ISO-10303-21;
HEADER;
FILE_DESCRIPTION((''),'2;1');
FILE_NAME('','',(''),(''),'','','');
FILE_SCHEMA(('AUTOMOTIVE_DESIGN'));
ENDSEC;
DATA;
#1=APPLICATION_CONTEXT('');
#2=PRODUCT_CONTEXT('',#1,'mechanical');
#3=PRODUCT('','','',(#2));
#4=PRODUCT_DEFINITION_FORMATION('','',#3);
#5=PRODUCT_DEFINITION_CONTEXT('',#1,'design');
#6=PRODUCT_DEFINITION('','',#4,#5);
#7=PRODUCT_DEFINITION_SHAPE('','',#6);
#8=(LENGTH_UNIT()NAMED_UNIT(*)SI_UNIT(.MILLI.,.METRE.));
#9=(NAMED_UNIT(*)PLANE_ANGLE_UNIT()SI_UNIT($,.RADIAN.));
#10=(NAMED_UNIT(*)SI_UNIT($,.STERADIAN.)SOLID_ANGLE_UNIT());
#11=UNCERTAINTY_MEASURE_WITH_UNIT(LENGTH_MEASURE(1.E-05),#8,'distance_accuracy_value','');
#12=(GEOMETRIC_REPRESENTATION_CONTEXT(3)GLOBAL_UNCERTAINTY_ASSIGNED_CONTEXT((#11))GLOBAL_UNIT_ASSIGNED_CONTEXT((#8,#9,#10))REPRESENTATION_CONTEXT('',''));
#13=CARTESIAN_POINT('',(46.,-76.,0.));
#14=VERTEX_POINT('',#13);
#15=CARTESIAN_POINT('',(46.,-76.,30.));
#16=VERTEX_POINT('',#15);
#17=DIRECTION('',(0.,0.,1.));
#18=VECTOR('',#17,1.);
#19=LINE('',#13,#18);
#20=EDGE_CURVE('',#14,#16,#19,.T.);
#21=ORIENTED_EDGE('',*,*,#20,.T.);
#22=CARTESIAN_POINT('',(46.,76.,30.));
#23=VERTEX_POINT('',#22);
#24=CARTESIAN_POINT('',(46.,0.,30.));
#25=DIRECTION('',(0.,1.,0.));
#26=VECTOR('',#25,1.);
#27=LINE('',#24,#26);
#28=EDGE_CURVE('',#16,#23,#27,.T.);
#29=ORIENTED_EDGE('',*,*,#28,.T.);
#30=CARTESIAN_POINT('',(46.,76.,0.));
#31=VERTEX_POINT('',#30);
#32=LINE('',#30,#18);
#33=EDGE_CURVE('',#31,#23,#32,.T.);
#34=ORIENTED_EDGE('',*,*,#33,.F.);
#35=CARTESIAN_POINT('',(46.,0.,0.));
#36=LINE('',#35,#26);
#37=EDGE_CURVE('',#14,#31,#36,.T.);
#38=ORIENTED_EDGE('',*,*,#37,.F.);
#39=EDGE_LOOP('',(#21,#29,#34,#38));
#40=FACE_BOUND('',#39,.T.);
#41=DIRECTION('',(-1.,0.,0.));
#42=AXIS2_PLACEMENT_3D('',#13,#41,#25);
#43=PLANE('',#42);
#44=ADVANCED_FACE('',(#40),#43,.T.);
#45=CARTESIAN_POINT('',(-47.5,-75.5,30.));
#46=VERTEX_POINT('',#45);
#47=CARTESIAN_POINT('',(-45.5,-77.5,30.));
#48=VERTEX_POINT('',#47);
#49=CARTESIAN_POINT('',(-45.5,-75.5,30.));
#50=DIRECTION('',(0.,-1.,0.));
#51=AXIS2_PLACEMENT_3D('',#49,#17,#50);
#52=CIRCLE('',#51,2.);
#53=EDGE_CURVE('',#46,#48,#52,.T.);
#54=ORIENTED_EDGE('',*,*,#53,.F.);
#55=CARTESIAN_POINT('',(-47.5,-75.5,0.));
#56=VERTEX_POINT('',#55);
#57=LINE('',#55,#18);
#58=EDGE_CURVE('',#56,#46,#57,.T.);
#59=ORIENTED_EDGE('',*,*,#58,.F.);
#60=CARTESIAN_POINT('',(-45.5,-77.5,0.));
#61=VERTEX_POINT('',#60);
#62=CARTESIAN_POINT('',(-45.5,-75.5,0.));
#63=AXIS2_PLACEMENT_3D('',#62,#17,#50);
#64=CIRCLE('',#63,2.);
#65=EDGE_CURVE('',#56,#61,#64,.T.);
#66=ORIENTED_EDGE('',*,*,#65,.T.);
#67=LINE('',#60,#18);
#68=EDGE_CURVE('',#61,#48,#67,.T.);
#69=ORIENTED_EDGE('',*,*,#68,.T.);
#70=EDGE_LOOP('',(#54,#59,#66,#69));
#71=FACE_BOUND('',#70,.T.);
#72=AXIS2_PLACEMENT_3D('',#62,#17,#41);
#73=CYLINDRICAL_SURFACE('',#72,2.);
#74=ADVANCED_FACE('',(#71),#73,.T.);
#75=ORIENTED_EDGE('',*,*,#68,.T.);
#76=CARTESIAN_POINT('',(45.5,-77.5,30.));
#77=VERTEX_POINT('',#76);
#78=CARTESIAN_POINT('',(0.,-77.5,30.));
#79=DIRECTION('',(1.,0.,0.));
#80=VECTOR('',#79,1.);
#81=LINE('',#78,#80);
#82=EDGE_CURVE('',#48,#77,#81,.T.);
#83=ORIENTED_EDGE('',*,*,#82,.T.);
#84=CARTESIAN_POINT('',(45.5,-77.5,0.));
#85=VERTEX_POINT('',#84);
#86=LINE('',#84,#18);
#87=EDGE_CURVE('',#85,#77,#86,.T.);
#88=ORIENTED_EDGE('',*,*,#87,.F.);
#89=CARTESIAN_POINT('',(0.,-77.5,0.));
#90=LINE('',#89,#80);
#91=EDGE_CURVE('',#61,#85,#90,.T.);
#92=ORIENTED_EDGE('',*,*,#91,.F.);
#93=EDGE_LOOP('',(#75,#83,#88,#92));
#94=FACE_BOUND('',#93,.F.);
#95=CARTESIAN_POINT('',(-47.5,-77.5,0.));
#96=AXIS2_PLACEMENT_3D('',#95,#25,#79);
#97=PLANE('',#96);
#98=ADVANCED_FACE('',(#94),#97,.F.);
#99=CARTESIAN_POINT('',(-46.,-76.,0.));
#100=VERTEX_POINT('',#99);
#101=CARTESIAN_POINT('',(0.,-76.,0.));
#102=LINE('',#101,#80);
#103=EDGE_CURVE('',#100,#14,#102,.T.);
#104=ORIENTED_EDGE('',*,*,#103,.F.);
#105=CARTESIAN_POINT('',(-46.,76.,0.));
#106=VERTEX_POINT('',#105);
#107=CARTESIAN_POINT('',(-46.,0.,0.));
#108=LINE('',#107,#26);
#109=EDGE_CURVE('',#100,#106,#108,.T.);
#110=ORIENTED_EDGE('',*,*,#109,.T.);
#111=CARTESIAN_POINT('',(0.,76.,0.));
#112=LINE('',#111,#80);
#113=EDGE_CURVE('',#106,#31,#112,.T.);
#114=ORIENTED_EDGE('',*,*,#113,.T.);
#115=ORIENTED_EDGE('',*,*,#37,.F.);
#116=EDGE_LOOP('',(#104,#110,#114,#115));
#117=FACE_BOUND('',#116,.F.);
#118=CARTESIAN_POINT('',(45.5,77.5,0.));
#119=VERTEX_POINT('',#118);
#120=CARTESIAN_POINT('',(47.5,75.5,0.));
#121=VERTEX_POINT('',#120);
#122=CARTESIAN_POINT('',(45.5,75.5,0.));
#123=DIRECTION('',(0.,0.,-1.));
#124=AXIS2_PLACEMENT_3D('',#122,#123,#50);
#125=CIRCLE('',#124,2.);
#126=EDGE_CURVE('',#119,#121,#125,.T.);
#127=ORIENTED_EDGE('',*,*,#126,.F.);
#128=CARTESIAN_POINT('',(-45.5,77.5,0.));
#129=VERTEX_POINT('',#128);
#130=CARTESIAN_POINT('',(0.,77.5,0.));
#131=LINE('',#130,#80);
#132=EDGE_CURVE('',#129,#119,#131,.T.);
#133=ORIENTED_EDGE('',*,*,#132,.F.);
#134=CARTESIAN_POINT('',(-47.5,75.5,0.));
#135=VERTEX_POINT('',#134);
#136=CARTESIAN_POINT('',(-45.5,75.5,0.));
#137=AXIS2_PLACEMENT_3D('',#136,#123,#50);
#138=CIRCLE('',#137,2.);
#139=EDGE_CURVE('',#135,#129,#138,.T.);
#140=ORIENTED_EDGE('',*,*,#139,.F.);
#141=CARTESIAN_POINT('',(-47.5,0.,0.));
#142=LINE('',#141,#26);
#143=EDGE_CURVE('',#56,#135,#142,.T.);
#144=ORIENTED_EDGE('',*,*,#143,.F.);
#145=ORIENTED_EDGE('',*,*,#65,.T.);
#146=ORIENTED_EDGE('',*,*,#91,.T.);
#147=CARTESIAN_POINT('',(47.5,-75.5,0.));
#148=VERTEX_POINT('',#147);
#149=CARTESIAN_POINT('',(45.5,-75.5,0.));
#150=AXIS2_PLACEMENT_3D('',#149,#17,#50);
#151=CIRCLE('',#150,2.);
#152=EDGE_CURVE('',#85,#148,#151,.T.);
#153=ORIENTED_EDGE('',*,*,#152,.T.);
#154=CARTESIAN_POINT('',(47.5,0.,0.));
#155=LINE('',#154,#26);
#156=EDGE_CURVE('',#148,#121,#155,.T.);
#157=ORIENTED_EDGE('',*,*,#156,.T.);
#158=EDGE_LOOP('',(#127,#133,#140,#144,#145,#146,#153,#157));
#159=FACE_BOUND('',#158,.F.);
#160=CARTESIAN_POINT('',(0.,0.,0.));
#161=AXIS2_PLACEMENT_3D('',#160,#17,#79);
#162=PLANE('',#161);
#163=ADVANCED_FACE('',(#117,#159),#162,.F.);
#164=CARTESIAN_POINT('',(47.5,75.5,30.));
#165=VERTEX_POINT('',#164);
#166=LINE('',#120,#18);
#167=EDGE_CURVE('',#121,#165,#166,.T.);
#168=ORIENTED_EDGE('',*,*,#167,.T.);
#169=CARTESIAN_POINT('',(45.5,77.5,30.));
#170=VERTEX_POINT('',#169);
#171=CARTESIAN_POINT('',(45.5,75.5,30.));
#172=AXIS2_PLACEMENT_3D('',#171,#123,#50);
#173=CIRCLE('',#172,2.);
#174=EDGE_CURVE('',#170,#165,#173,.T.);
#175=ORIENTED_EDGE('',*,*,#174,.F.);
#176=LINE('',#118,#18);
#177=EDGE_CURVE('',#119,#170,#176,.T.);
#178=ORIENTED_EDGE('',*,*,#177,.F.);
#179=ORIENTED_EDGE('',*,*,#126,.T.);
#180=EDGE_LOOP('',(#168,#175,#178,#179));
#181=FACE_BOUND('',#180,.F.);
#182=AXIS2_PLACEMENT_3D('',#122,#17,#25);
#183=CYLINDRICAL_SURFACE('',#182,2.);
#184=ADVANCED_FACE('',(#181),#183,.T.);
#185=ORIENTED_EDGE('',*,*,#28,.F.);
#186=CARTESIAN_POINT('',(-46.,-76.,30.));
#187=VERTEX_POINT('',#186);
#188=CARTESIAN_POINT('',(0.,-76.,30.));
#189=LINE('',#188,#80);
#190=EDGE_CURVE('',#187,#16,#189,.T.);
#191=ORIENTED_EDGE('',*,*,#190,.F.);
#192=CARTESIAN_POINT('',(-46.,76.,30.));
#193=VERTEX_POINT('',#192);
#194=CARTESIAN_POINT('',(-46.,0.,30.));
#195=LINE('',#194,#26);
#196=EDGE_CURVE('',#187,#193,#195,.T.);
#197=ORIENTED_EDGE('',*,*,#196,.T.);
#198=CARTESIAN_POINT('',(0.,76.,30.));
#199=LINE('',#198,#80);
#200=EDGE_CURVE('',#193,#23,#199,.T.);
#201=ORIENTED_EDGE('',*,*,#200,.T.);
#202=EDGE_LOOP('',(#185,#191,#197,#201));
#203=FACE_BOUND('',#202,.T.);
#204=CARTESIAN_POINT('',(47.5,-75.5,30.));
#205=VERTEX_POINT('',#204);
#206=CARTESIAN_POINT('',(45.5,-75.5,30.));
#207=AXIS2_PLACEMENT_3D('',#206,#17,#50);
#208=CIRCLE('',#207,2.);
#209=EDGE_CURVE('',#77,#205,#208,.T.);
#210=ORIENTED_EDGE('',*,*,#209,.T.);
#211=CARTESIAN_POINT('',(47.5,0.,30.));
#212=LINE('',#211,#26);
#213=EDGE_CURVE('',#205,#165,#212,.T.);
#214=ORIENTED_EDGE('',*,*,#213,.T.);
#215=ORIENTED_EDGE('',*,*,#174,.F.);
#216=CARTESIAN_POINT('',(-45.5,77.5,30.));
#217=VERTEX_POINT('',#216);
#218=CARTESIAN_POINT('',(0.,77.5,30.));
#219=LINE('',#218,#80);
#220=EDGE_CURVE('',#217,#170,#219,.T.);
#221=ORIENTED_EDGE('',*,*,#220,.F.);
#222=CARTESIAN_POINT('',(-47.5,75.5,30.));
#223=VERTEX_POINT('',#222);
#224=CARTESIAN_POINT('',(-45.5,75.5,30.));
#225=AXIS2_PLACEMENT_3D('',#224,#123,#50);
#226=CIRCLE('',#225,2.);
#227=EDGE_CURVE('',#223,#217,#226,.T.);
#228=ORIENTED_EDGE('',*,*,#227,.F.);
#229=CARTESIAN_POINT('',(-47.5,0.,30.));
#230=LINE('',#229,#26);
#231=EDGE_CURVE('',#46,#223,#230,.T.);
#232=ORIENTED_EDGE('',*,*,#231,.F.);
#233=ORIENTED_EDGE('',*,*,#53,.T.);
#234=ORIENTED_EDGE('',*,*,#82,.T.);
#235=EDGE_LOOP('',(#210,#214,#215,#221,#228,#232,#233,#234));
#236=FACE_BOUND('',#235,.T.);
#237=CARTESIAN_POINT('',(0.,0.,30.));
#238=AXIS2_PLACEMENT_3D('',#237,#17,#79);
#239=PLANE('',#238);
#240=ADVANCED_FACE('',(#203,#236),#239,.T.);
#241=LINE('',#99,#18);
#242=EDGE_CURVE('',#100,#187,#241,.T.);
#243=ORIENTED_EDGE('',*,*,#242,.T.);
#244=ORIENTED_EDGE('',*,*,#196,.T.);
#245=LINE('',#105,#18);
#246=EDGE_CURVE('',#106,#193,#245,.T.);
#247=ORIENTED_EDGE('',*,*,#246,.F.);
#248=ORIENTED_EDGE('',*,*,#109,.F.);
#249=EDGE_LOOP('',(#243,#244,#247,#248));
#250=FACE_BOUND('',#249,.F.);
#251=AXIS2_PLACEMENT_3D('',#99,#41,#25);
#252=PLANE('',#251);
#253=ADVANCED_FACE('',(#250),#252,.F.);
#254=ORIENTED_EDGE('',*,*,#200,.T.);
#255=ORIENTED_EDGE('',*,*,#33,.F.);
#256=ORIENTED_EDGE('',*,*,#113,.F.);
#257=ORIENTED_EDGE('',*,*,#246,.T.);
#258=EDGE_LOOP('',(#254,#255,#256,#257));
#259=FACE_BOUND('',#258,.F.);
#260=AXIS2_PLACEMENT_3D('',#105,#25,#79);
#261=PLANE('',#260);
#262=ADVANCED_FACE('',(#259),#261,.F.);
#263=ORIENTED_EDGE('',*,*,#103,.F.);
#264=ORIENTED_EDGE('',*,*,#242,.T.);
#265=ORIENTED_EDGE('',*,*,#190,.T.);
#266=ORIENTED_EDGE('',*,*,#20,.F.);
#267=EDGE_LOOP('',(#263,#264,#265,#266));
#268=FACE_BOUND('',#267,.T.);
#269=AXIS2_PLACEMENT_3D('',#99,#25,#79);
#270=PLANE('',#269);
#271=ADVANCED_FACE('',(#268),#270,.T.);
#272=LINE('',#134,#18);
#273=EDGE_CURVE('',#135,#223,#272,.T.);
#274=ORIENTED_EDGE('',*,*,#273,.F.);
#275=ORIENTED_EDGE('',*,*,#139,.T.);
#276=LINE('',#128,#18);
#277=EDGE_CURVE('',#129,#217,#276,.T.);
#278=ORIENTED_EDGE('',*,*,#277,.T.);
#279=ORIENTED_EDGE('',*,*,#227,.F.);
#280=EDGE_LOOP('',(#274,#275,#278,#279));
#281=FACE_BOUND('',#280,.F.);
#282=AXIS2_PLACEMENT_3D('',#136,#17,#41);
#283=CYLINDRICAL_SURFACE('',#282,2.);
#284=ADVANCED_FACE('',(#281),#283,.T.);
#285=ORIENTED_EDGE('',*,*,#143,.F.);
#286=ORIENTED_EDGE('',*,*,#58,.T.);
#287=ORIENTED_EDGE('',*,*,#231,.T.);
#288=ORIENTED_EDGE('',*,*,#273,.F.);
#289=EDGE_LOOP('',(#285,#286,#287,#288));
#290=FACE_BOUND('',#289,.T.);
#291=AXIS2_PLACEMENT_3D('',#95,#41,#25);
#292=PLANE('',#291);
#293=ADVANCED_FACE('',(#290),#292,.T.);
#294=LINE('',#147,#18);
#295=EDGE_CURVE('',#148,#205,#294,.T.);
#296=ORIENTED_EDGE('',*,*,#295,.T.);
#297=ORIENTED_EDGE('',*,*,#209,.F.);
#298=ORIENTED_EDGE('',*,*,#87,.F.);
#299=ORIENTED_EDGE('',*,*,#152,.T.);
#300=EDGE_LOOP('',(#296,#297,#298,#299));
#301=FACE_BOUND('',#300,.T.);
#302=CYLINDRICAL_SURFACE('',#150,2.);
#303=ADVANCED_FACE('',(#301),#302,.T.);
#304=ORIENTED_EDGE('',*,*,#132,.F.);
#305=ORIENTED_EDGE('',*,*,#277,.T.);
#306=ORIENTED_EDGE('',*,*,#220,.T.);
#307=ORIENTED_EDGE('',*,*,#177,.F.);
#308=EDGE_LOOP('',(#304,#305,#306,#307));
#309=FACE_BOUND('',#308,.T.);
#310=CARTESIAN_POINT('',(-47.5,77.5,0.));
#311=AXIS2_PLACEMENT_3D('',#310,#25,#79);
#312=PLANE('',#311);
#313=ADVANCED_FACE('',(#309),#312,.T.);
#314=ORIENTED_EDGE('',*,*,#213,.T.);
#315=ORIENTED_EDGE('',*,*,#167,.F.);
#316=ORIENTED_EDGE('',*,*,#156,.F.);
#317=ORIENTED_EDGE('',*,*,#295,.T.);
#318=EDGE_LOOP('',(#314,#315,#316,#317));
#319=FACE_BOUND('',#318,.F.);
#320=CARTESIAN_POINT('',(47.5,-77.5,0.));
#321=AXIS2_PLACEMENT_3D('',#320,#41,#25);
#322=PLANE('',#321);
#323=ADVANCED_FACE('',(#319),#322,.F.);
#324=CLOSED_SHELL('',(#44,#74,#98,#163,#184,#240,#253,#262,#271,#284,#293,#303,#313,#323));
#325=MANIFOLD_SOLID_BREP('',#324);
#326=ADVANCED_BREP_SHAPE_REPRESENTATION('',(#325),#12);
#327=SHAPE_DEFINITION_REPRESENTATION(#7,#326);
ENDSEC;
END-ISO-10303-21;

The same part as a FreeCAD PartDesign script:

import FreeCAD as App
import Part
import Sketcher

V = App.Vector
Q = App.Units.Quantity


def edges_at(feature, points):
    """Names of the edges that pass closest to the given points."""
    edges = feature.Shape.Edges
    near = lambda p: min(range(len(edges)), key=lambda i: edges[i].distToShape(Part.Vertex(*p))[0])
    return sorted({f"Edge{near(p) + 1}" for p in points})

doc = App.newDocument("Part")
body = doc.addObject("PartDesign::Body", "Body")

# Sketch on XY plane
sketch1 = body.newObject("Sketcher::SketchObject", "Sketch")
sketch1.AttachmentSupport = (doc.getObject("XY_Plane"), [""])
sketch1.MapMode = "FlatFace"
sketch1.addGeometry([
    Part.LineSegment(V(-48, 78, 0), V(-48, -78, 0)),  # 0
    Part.LineSegment(V(-48, -78, 0), V(48, -78, 0)),  # 1
    Part.LineSegment(V(48, -78, 0), V(48, 78, 0)),  # 2
    Part.LineSegment(V(48, 78, 0), V(-48, 78, 0)),  # 3
    Part.LineSegment(V(46, -76, 0), V(-46, -76, 0)),  # 4
    Part.LineSegment(V(-46, -76, 0), V(-46, 76, 0)),  # 5
    Part.LineSegment(V(-46, 76, 0), V(46, 76, 0)),  # 6
    Part.LineSegment(V(46, 76, 0), V(46, -76, 0)),  # 7
], False)
sketch1.addConstraint([
    Sketcher.Constraint("Coincident", 0, 2, 1, 1),
    Sketcher.Constraint("Coincident", 1, 2, 2, 1),
    Sketcher.Constraint("Coincident", 2, 2, 3, 1),
    Sketcher.Constraint("Coincident", 3, 2, 0, 1),
    Sketcher.Constraint("Coincident", 4, 2, 5, 1),
    Sketcher.Constraint("Coincident", 5, 2, 6, 1),
    Sketcher.Constraint("Coincident", 6, 2, 7, 1),
    Sketcher.Constraint("Coincident", 7, 2, 4, 1),
    Sketcher.Constraint("Vertical", 0),
    Sketcher.Constraint("Horizontal", 1),
    Sketcher.Constraint("Vertical", 2),
    Sketcher.Constraint("Horizontal", 3),
    Sketcher.Constraint("Horizontal", 4),
    Sketcher.Constraint("Vertical", 5),
    Sketcher.Constraint("Horizontal", 6),
    Sketcher.Constraint("Vertical", 7),
    Sketcher.Constraint("Symmetric", 0, 2, 2, 2, -1, 1),
    Sketcher.Constraint("Symmetric", 4, 2, 6, 2, -1, 1),
    Sketcher.Constraint("DistanceX", 1, 1, 1, 2, Q("95 mm")),
    Sketcher.Constraint("DistanceX", 4, 2, 4, 1, Q("92 mm")),
    Sketcher.Constraint("DistanceY", 0, 2, 0, 1, Q("155 mm")),
    Sketcher.Constraint("DistanceY", 5, 1, 5, 2, Q("152 mm")),
])
pad1 = body.newObject("PartDesign::Pad", "Pad")
pad1.Profile = sketch1
pad1.Length = 30
doc.recompute()

fillet = body.newObject("PartDesign::Fillet", "Fillet")
fillet.Base = (pad1, edges_at(pad1, [
    (47.5, 77.5, 15),
    (-47.5, 77.5, 15),
    (-47.5, -77.5, 15),
    (47.5, -77.5, 15),
]))
fillet.Radius = 2

doc.recompute()
